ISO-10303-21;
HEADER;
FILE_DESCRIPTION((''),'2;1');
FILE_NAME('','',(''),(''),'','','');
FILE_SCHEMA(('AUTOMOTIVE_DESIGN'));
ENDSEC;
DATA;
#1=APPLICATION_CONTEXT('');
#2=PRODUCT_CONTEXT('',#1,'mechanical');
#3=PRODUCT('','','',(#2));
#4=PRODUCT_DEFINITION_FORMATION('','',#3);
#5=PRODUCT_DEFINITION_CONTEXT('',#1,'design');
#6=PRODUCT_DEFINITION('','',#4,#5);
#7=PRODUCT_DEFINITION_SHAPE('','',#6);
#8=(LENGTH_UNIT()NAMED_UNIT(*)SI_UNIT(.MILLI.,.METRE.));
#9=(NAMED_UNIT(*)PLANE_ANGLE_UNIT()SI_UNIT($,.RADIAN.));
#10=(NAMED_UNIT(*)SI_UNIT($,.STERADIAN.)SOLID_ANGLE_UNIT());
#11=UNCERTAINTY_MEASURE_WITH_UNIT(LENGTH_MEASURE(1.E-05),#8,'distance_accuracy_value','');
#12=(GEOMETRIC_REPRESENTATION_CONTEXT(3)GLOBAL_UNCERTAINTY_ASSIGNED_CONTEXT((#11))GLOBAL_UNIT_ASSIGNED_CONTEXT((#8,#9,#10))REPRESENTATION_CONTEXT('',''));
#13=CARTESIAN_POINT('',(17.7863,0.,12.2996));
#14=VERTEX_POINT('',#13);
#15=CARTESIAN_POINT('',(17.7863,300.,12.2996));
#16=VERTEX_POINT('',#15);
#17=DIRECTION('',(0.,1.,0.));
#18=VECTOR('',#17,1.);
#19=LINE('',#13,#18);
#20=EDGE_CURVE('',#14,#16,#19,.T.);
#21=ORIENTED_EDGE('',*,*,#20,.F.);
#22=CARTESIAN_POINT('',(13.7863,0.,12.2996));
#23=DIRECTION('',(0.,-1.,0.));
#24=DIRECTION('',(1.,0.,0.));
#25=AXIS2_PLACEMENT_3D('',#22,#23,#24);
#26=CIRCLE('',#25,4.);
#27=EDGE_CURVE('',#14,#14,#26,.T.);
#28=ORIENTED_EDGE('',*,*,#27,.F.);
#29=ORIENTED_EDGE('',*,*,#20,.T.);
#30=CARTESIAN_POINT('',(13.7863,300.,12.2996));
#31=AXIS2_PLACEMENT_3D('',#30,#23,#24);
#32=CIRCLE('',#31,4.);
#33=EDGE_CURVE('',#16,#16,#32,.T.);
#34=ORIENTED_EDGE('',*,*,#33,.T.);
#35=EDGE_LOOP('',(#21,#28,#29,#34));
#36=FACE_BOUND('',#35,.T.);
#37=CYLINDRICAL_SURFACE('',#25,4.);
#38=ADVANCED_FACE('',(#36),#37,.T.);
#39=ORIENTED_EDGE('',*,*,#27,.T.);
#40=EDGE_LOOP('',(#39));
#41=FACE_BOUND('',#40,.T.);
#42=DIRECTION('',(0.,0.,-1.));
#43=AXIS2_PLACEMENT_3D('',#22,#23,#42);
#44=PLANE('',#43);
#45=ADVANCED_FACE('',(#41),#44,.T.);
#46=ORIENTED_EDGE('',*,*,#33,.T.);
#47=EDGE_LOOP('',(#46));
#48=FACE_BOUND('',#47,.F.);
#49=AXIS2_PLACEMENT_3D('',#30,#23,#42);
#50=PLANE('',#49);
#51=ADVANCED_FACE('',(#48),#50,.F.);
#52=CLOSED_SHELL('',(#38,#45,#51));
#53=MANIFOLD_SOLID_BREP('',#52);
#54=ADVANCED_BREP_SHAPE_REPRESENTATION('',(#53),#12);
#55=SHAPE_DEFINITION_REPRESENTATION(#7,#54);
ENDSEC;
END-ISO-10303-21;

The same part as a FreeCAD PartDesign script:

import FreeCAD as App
import Part
import Sketcher

V = App.Vector
Q = App.Units.Quantity

doc = App.newDocument("Part")
body = doc.addObject("PartDesign::Body", "Body")

# Sketch on XZ plane
sketch1 = body.newObject("Sketcher::SketchObject", "Sketch")
sketch1.AttachmentSupport = (doc.getObject("XZ_Plane"), [""])
sketch1.MapMode = "FlatFace"
sketch1.addGeometry(Part.Circle(V(13.8, 12.3, 0), V(0, 0, 1), 4), False)
sketch1.addConstraint(Sketcher.Constraint("Diameter", 0, Q("8 mm")))
sketch1.addConstraint(Sketcher.Constraint("DistanceX", -1, 1, 0, 3, Q("13.7863 mm")))
sketch1.addConstraint(Sketcher.Constraint("DistanceY", -1, 1, 0, 3, Q("12.2996 mm")))
pad1 = body.newObject("PartDesign::Pad", "Pad")
pad1.Profile = sketch1
pad1.Length = 300
pad1.Reversed = True

doc.recompute()
